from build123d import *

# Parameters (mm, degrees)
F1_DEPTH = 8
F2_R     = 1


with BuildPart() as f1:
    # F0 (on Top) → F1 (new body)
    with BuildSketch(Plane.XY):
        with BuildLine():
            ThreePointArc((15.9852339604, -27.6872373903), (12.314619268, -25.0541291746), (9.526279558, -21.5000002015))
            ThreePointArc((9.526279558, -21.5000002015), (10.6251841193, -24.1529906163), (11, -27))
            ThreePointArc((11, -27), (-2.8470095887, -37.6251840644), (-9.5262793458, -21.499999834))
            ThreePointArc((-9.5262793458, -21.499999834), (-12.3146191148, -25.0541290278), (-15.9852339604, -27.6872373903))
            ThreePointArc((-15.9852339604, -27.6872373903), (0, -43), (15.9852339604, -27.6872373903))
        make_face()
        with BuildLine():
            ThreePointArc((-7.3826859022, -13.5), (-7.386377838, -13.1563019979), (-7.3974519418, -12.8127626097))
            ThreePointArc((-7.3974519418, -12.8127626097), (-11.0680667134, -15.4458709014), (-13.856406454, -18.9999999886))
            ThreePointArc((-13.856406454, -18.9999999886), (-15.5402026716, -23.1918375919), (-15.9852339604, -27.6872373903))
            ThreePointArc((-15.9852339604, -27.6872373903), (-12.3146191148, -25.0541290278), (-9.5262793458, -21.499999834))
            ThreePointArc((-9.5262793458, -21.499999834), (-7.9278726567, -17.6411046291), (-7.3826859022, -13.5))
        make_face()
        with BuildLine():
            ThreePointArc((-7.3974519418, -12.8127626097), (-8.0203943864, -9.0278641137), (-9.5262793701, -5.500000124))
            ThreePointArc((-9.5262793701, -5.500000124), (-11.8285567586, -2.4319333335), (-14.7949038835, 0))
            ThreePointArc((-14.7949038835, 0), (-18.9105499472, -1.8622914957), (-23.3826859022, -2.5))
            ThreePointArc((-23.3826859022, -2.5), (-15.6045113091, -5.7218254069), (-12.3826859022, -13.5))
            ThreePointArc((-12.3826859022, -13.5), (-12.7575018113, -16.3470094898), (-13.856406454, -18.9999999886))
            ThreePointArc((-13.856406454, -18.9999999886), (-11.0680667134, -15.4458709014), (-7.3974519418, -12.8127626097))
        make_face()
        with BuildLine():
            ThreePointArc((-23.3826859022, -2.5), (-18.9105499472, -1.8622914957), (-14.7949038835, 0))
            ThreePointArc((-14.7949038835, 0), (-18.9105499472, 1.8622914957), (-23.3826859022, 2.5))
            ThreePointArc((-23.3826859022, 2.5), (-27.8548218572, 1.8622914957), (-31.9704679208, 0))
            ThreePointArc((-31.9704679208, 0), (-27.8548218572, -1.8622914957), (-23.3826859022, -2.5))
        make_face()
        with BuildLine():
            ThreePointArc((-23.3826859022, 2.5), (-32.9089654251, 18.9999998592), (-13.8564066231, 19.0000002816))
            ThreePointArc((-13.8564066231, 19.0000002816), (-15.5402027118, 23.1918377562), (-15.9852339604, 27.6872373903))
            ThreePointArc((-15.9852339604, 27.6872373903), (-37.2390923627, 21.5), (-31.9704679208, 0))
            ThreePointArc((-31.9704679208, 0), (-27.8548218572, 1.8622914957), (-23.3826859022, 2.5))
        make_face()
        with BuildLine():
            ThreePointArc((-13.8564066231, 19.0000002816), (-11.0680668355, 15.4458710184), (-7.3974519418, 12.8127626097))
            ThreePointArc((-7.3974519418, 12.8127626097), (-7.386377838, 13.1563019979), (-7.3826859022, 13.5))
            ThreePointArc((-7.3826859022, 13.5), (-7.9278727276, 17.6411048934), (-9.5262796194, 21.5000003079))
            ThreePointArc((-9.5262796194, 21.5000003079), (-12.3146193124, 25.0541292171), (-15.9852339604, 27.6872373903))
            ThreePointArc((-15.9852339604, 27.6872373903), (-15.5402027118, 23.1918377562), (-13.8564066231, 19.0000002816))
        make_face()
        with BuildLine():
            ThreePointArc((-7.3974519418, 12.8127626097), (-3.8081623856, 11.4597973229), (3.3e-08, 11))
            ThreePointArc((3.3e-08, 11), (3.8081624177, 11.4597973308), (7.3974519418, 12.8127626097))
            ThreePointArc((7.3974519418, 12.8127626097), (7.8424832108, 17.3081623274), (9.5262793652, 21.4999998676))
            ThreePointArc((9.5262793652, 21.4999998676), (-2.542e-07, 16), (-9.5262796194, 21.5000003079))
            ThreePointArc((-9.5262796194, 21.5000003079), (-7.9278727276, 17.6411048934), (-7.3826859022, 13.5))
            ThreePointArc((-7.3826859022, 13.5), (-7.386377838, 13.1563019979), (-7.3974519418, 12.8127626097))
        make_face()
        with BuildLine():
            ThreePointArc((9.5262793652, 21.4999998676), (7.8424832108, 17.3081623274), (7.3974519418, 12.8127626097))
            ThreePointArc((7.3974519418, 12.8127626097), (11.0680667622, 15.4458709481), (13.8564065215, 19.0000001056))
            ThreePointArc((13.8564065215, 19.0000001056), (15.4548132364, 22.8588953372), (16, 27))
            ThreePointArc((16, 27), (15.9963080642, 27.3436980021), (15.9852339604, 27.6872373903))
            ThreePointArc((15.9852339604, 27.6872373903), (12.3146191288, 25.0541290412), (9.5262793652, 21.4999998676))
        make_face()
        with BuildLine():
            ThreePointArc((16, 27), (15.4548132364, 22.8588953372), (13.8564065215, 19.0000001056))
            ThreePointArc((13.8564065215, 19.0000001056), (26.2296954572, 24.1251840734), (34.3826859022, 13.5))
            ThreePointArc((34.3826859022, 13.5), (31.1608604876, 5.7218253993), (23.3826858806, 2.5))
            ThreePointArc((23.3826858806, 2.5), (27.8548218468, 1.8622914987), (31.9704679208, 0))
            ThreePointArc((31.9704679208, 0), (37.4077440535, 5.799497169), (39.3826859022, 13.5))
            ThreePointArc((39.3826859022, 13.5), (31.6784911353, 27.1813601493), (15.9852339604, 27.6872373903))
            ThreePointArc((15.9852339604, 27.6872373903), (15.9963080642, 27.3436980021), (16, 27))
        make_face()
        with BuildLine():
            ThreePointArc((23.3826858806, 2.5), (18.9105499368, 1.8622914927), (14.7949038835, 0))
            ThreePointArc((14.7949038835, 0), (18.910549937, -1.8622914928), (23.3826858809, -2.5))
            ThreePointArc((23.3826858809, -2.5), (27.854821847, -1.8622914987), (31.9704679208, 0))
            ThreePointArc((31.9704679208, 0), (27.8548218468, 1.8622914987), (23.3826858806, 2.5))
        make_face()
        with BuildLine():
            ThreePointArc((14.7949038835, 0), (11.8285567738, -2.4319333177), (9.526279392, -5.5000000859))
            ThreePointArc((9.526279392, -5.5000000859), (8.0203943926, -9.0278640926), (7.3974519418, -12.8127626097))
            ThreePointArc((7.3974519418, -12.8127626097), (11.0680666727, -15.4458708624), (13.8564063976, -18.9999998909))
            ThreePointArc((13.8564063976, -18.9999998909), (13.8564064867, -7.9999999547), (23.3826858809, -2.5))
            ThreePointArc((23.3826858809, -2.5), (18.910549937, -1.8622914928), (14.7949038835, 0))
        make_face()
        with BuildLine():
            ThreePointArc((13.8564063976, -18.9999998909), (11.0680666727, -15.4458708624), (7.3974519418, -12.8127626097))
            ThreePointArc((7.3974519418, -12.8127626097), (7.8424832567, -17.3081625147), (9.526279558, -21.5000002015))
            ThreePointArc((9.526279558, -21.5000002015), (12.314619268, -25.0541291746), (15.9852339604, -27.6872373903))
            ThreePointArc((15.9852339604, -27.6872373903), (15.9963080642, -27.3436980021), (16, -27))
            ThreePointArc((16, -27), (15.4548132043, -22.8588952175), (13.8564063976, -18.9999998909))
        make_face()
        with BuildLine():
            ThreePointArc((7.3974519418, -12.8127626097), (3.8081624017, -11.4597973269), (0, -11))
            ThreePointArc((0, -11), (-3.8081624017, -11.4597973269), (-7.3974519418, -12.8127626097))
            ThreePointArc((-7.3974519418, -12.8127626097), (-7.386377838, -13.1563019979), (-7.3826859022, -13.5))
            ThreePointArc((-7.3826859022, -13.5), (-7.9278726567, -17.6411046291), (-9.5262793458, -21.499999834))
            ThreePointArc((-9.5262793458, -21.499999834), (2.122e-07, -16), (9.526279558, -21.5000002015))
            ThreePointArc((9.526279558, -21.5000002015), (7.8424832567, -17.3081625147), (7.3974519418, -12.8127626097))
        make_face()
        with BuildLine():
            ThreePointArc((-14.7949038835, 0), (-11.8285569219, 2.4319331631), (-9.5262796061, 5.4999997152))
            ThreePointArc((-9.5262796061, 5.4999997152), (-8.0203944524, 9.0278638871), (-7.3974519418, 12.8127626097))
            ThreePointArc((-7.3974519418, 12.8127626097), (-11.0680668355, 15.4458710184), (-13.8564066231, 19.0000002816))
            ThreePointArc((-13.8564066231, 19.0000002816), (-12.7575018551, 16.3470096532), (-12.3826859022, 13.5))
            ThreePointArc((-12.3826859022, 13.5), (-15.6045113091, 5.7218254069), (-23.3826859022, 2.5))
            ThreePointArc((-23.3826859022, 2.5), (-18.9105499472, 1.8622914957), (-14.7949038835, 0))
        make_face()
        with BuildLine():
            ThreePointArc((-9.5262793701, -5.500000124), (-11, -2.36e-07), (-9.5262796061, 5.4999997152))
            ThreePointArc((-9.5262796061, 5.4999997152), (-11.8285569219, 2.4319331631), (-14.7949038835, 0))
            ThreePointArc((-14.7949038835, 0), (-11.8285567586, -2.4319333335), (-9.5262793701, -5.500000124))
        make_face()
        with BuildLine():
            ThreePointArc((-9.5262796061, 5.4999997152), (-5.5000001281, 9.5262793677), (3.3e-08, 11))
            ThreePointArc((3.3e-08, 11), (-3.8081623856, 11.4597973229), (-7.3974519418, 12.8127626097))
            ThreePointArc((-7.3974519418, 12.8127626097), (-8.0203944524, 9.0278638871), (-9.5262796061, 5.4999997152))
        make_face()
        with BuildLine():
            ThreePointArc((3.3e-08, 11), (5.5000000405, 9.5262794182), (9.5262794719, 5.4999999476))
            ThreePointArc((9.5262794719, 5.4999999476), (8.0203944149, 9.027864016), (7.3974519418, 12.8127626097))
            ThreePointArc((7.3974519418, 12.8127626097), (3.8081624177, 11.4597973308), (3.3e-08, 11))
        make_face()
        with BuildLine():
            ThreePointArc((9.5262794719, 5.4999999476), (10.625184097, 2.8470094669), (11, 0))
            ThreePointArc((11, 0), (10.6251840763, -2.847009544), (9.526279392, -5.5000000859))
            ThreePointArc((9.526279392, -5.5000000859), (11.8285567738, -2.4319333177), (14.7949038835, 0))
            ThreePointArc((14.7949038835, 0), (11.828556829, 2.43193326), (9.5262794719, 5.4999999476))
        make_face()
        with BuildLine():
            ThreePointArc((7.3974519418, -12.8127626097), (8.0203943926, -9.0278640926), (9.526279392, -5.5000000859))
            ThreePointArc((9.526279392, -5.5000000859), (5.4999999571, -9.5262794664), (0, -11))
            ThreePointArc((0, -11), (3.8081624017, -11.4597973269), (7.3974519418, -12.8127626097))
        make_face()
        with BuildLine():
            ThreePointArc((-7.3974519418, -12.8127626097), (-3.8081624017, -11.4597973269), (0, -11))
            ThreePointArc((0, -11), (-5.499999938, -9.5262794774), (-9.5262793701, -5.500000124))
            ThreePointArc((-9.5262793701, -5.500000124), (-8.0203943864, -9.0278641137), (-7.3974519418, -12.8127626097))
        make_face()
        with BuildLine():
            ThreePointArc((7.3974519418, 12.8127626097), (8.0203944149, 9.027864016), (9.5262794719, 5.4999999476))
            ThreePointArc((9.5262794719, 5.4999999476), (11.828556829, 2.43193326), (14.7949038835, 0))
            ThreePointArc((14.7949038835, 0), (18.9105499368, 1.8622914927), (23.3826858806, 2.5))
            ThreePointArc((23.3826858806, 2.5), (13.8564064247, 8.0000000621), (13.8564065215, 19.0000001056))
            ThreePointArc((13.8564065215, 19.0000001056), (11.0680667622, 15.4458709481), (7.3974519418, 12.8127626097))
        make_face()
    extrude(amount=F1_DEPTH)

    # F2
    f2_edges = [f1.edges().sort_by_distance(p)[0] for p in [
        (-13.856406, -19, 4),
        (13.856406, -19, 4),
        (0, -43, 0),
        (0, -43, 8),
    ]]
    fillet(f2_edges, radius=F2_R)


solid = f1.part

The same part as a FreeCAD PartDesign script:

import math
import FreeCAD as App
import Part
import Sketcher
from FreeCAD import Vector
Q = App.Units.Quantity


def edges_at(feature, points):
    """Names of the edges that pass closest to the given points."""
    edges = feature.Shape.Edges
    near = lambda p: min(range(len(edges)), key=lambda i: edges[i].distToShape(Part.Vertex(*p))[0])
    return sorted({f"Edge{near(p) + 1}" for p in points})

doc = App.newDocument("Part")
body = doc.addObject("PartDesign::Body", "Body")

# Sketch on XY plane
sketch1 = body.newObject("Sketcher::SketchObject", "Sketch")
sketch1.AttachmentSupport = (doc.getObject("XY_Plane"), [""])
sketch1.MapMode = "FlatFace"
sketch1.addGeometry([
    Part.ArcOfCircle(Part.Circle(Vector(23.382686, -13.5, 0), Vector(0, 0, 1), 11), math.radians(90), math.radians(209.999999)),  # 0
    Part.ArcOfCircle(Part.Circle(Vector(23.382686, 13.5, 0), Vector(0, 0, 1), 16), math.radians(-90), math.radians(-57.538255)),  # 1
    Part.ArcOfCircle(Part.Circle(Vector(23.382686, 13.5, 0), Vector(0, 0, 1), 16), math.radians(-57.538255), math.radians(0)),  # 2
    Part.ArcOfCircle(Part.Circle(Vector(23.382686, 13.5, 0), Vector(0, 0, 1), 16), math.radians(0), math.radians(117.538255)),  # 3
    Part.ArcOfCircle(Part.Circle(Vector(23.382686, 13.5, 0), Vector(0, 0, 1), 16), math.radians(117.538255), math.radians(150.000001)),  # 4
    Part.ArcOfCircle(Part.Circle(Vector(0, 27, 0), Vector(0, 0, 1), 11), math.radians(-150.000002), math.radians(-30.000001)),  # 5
    Part.ArcOfCircle(Part.Circle(Vector(-23.382686, 13.5, 0), Vector(0, 0, 1), 16), math.radians(30.000001), math.radians(62.461745)),  # 6
    Part.ArcOfCircle(Part.Circle(Vector(-23.382686, 13.5, 0), Vector(0, 0, 1), 16), math.radians(62.461745), math.radians(237.538255)),  # 7
    Part.ArcOfCircle(Part.Circle(Vector(-23.382686, 13.5, 0), Vector(0, 0, 1), 16), math.radians(-122.461745), math.radians(-90)),  # 8
    Part.ArcOfCircle(Part.Circle(Vector(-23.382686, -13.5, 0), Vector(0, 0, 1), 11), math.radians(0), math.radians(90)),  # 9
    Part.ArcOfCircle(Part.Circle(Vector(-23.382686, -13.5, 0), Vector(0, 0, 1), 11), math.radians(-30), math.radians(0)),  # 10
    Part.ArcOfCircle(Part.Circle(Vector(0, -27, 0), Vector(0, 0, 1), 16), math.radians(150), math.radians(182.461745)),  # 11
    Part.ArcOfCircle(Part.Circle(Vector(0, -27, 0), Vector(0, 0, 1), 16), math.radians(-177.538255), math.radians(-2.461745)),  # 12
    Part.ArcOfCircle(Part.Circle(Vector(0, -27, 0), Vector(0, 0, 1), 16), math.radians(-2.461745), math.radians(0)),  # 13
    Part.ArcOfCircle(Part.Circle(Vector(0, -27, 0), Vector(0, 0, 1), 16), math.radians(0), math.radians(30)),  # 14
    Part.ArcOfCircle(Part.Circle(Vector(0, -27, 0), Vector(0, 0, 1), 11), math.radians(0), math.radians(29.999999)),  # 15
    Part.ArcOfCircle(Part.Circle(Vector(0, -27, 0), Vector(0, 0, 1), 11), math.radians(149.999999), math.radians(360)),  # 16
    Part.ArcOfCircle(Part.Circle(Vector(0, -27, 0), Vector(0, 0, 1), 11), math.radians(29.999999), math.radians(149.999999)),  # 17
    Part.ArcOfCircle(Part.Circle(Vector(0, 0, 0), Vector(0, 0, 1), 11), math.radians(30), math.radians(90)),  # 18
    Part.ArcOfCircle(Part.Circle(Vector(0, 0, 0), Vector(0, 0, 1), 11), math.radians(0), math.radians(30)),  # 19
    Part.ArcOfCircle(Part.Circle(Vector(0, 0, 0), Vector(0, 0, 1), 11), math.radians(-30.000001), math.radians(0)),  # 20
    Part.ArcOfCircle(Part.Circle(Vector(0, 0, 0), Vector(0, 0, 1), 11), math.radians(-90), math.radians(-30.000001)),  # 21
    Part.ArcOfCircle(Part.Circle(Vector(0, 0, 0), Vector(0, 0, 1), 11), math.radians(-149.999999), math.radians(-90)),  # 22
    Part.ArcOfCircle(Part.Circle(Vector(0, 0, 0), Vector(0, 0, 1), 11), math.radians(150.000002), math.radians(210.000001)),  # 23
    Part.ArcOfCircle(Part.Circle(Vector(0, 0, 0), Vector(0, 0, 1), 11), math.radians(90), math.radians(150.000002)),  # 24
    Part.ArcOfCircle(Part.Circle(Vector(-23.382686, 13.5, 0), Vector(0, 0, 1), 11), math.radians(30.000002), math.radians(270)),  # 25
    Part.ArcOfCircle(Part.Circle(Vector(-23.382686, 13.5, 0), Vector(0, 0, 1), 11), math.radians(0), math.radians(30.000002)),  # 26
    Part.ArcOfCircle(Part.Circle(Vector(-23.382686, 13.5, 0), Vector(0, 0, 1), 11), math.radians(-90), math.radians(0)),  # 27
    Part.ArcOfCircle(Part.Circle(Vector(23.382686, 13.5, 0), Vector(0, 0, 1), 11), math.radians(149.999999), math.radians(360)),  # 28
    Part.ArcOfCircle(Part.Circle(Vector(23.382686, 13.5, 0), Vector(0, 0, 1), 11), math.radians(0), math.radians(149.999999)),  # 29
], False)
sketch1.addConstraint([
    Sketcher.Constraint("Tangent", 0, 1, 1, 1),
    Sketcher.Constraint("Tangent", 1, 2, 2, 1),
    Sketcher.Constraint("Tangent", 2, 2, 3, 1),
    Sketcher.Constraint("Tangent", 3, 2, 4, 1),
    Sketcher.Constraint("Tangent", 4, 2, 5, 2),
    Sketcher.Constraint("Tangent", 5, 1, 6, 1),
    Sketcher.Constraint("Tangent", 6, 2, 7, 1),
    Sketcher.Constraint("Tangent", 7, 2, 8, 1),
    Sketcher.Constraint("Tangent", 8, 2, 9, 2),
    Sketcher.Constraint("Tangent", 9, 1, 10, 2),
    Sketcher.Constraint("Tangent", 10, 1, 11, 1),
    Sketcher.Constraint("Tangent", 11, 2, 12, 1),
    Sketcher.Constraint("Tangent", 12, 2, 13, 1),
    Sketcher.Constraint("Tangent", 13, 2, 14, 1),
    Sketcher.Constraint("Tangent", 14, 2, 0, 2),
    Sketcher.Constraint("Tangent", 15, 1, 16, 2),
    Sketcher.Constraint("Tangent", 16, 1, 17, 2),
    Sketcher.Constraint("Tangent", 17, 1, 15, 2),
    Sketcher.Constraint("Tangent", 18, 1, 19, 2),
    Sketcher.Constraint("Tangent", 19, 1, 20, 2),
    Sketcher.Constraint("Tangent", 20, 1, 21, 2),
    Sketcher.Constraint("Tangent", 21, 1, 22, 2),
    Sketcher.Constraint("Tangent", 22, 1, 23, 2),
    Sketcher.Constraint("Tangent", 23, 1, 24, 2),
    Sketcher.Constraint("Tangent", 24, 1, 18, 2),
    Sketcher.Constraint("Tangent", 25, 1, 26, 2),
    Sketcher.Constraint("Tangent", 26, 1, 27, 2),
    Sketcher.Constraint("Tangent", 27, 1, 25, 2),
    Sketcher.Constraint("Tangent", 28, 1, 29, 2),
    Sketcher.Constraint("Coincident", 29, 1, 28, 2),
    Sketcher.Constraint("Coincident", 18, 3, -1, 1),
    Sketcher.Constraint("Coincident", 20, 3, -1, 1),
    Sketcher.Constraint("Coincident", 22, 3, -1, 1),
    Sketcher.Constraint("Coincident", 3, 3, 1, 3),
    Sketcher.Constraint("Coincident", 8, 3, 6, 3),
    Sketcher.Constraint("Coincident", 13, 3, 11, 3),
    Sketcher.Constraint("Coincident", 15, 3, 11, 3),
    Sketcher.Constraint("Coincident", 25, 3, 6, 3),
    Sketcher.Constraint("Coincident", 28, 3, 1, 3),
    Sketcher.Constraint("Equal", 3, 4),
    Sketcher.Constraint("Equal", 0, 5),
    Sketcher.Constraint("Equal", 4, 6),
    Sketcher.Constraint("Equal", 5, 9),
    Sketcher.Constraint("Equal", 9, 10),
    Sketcher.Constraint("Equal", 8, 11),
    Sketcher.Constraint("Equal", 13, 14),
    Sketcher.Constraint("Equal", 10, 15),
    Sketcher.Constraint("Equal", 17, 18),
    Sketcher.Constraint("Equal", 24, 25),
    Sketcher.Constraint("Equal", 27, 28),
    Sketcher.Constraint("Symmetric", 0, 3, 6, 3, -1, 1),
    Sketcher.Constraint("Symmetric", 1, 2, 7, 2, -1, 1),
    Sketcher.Constraint("Symmetric", 3, 2, 11, 2, -1, 1),
    Sketcher.Constraint("Symmetric", 6, 2, 12, 2, -1, 1),
    Sketcher.Constraint("Symmetric", 4, 2, 16, 1, -1, 1),
    Sketcher.Constraint("Symmetric", 1, 3, 6, 3, -2),
    Sketcher.Constraint("PointOnObject", 19, 1, -1),
    Sketcher.Constraint("PointOnObject", 21, 1, -2),
    Sketcher.Constraint("PointOnObject", 24, 1, -2),
    Sketcher.Constraint("Horizontal", 29, 3, 2, 2),
    Sketcher.Constraint("Horizontal", 10, 3, 9, 1),
    Sketcher.Constraint("Horizontal", 17, 3, 13, 2),
    Sketcher.Constraint("Horizontal", 13, 2, 15, 1),
    Sketcher.Constraint("Horizontal", 16, 1, 17, 1),
    Sketcher.Constraint("Horizontal", 20, 1, 22, 1),
    Sketcher.Constraint("Horizontal", 18, 1, 23, 1),
    Sketcher.Constraint("Horizontal", 2, 2, 26, 1),
    Sketcher.Constraint("Horizontal", 25, 1, 28, 1),
    Sketcher.Constraint("Horizontal", 26, 1, 29, 1),
    Sketcher.Constraint("Vertical", 17, 1, 18, 1),
    Sketcher.Constraint("Vertical", 18, 1, 20, 1),
    Sketcher.Constraint("Vertical", 10, 1, 25, 1),
    Sketcher.Constraint("Vertical", 8, 2, 27, 1),
    Sketcher.Constraint("Radius", 0, Q("11 mm")),
    Sketcher.Constraint("Radius", 1, Q("16 mm")),
    Sketcher.Constraint("DistanceY", -1, 1, 5, 3, Q("27 mm")),
])
pad1 = body.newObject("PartDesign::Pad", "Pad")
pad1.Profile = sketch1
pad1.Length = 8
doc.recompute()

fillet = body.newObject("PartDesign::Fillet", "Fillet")
fillet.Base = (pad1, edges_at(pad1, [
    (-13.856, -19, 4),
    (13.856, -19, 4),
    (0, -43, 0),
    (0, -43, 8),
]))
fillet.Radius = 1

doc.recompute()
